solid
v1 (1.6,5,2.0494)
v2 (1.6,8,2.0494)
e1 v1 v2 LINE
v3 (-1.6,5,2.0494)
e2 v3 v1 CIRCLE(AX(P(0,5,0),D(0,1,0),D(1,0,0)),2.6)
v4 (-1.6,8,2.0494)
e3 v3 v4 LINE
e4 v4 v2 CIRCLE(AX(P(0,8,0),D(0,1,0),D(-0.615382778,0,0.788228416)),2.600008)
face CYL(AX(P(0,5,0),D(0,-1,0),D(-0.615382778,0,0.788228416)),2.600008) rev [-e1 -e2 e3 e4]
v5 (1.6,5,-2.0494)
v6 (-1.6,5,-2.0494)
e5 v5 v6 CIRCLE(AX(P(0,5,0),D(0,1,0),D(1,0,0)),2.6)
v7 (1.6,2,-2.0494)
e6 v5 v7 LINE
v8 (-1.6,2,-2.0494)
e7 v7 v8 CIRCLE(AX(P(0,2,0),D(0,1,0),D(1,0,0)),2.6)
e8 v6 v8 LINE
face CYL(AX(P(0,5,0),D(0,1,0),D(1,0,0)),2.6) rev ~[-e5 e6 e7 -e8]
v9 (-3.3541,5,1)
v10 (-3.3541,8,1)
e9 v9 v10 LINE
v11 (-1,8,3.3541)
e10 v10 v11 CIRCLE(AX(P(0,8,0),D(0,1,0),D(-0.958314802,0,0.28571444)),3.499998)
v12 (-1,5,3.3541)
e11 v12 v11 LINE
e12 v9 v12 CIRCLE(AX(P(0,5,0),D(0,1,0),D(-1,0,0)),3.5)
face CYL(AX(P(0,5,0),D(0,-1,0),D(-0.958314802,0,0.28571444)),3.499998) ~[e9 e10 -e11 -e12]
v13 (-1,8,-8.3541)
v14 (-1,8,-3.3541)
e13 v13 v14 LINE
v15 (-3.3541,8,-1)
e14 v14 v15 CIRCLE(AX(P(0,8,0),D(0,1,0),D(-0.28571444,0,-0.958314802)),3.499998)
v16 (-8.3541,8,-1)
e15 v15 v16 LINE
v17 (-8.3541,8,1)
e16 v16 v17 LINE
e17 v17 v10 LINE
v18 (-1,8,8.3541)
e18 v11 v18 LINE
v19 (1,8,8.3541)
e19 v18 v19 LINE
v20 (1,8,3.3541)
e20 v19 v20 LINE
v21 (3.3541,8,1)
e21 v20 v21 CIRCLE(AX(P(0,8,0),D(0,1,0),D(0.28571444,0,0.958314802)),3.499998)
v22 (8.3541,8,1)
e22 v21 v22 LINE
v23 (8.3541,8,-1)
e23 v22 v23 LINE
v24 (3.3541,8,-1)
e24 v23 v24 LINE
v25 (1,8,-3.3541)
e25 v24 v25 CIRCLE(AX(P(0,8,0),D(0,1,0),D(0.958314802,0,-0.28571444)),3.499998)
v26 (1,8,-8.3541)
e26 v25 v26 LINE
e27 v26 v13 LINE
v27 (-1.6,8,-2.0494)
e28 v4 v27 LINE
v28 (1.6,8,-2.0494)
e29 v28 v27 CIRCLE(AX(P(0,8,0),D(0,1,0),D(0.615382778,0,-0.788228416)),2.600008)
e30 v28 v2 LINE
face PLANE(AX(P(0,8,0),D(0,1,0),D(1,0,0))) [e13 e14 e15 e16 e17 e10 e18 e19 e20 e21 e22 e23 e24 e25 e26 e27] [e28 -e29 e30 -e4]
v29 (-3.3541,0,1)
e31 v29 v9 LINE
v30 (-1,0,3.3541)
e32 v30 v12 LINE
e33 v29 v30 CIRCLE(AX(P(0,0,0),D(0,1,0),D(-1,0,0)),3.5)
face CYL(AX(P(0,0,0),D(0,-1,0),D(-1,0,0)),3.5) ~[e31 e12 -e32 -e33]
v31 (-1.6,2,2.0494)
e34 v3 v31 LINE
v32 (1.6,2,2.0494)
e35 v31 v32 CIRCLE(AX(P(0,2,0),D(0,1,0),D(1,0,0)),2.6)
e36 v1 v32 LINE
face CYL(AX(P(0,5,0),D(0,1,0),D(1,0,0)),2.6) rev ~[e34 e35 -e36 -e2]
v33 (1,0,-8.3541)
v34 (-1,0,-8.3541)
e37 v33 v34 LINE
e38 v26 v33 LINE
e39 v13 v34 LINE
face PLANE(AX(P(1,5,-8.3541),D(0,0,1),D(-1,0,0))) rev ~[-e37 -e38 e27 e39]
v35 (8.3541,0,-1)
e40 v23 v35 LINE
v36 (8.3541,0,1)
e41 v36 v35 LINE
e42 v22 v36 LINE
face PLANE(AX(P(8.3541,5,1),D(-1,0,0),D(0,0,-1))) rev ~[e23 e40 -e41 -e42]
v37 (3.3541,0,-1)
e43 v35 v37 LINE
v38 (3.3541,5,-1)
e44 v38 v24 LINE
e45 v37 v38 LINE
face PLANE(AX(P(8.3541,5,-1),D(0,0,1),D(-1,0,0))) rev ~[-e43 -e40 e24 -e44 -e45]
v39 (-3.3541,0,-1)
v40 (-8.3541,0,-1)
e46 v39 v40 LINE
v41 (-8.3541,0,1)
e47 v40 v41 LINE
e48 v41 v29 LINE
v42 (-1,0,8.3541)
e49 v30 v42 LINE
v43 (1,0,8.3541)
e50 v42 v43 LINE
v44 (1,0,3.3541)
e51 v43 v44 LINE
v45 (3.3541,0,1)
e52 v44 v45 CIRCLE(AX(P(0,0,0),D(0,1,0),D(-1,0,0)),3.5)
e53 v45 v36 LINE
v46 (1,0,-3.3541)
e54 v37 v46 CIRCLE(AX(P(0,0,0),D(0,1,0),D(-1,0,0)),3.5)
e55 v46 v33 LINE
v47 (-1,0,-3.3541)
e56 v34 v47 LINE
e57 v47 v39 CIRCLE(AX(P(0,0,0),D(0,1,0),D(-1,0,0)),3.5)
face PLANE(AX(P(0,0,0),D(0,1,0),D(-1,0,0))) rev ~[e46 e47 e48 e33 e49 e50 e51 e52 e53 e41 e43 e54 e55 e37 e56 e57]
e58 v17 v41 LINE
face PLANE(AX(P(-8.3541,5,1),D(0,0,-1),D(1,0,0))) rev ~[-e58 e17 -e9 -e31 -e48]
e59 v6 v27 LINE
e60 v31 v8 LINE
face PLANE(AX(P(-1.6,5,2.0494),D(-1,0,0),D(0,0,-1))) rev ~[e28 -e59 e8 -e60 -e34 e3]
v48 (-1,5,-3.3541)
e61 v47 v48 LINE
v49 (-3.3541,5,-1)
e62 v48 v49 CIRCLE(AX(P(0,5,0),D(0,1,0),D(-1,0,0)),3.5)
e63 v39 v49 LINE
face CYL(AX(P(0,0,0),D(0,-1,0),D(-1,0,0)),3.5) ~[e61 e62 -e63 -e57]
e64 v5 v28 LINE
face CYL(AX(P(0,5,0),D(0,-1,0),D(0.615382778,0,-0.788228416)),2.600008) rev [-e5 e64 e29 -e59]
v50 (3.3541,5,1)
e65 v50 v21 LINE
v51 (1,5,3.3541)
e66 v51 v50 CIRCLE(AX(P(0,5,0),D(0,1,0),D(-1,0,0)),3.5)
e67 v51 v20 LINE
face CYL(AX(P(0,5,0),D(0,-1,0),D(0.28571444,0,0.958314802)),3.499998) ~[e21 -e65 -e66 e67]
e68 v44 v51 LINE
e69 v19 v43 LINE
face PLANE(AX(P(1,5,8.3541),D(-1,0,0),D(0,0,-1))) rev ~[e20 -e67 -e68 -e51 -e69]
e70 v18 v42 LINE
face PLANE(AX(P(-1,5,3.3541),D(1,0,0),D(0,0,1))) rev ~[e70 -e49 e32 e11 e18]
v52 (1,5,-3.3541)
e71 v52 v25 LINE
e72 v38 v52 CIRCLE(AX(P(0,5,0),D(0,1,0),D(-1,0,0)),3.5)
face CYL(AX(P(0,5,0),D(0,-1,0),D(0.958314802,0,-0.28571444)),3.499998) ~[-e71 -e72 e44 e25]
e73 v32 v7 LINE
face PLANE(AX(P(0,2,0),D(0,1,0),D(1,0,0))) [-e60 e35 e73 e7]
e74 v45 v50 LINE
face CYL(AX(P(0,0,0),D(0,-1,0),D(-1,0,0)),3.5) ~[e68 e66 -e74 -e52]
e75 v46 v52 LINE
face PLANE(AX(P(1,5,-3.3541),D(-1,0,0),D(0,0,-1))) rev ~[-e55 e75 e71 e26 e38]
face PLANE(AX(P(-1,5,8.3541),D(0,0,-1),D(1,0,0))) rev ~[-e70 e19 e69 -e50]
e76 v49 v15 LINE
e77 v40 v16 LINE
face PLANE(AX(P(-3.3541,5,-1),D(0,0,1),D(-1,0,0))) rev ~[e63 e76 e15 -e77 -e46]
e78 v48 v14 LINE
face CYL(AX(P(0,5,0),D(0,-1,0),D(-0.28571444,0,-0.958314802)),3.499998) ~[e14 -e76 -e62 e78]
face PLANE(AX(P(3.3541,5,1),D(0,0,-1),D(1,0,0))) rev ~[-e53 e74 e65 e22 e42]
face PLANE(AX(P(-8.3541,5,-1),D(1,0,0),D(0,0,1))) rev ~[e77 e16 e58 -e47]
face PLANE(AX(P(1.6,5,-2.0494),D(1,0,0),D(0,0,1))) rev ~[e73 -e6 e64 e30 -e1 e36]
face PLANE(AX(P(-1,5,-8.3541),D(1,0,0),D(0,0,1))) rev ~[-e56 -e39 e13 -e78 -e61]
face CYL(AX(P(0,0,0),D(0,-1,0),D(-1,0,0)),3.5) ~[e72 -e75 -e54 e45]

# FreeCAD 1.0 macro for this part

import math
import FreeCAD as App
import Part
import Sketcher

doc = App.newDocument("Part")
body = doc.addObject("PartDesign::Body", "Body")

# Sketch on XZ plane
sketch1 = body.newObject("Sketcher::SketchObject", "Sketch")
sketch1.AttachmentSupport = (doc.getObject("XZ_Plane"), [""])
sketch1.MapMode = "FlatFace"
sketch1.addGeometry([
    Part.ArcOfCircle(Part.Circle(App.Vector(0, 0, 0), App.Vector(0, 0, 1), 3.5), math.radians(-163), math.radians(-107)),  # 0
    Part.LineSegment(App.Vector(-3.4, -1, 0), App.Vector(-8.4, -1, 0)),  # 1
    Part.LineSegment(App.Vector(-8.4, -1, 0), App.Vector(-8.4, 1, 0)),  # 2
    Part.LineSegment(App.Vector(-8.4, 1, 0), App.Vector(-3.4, 1, 0)),  # 3
    Part.ArcOfCircle(Part.Circle(App.Vector(0, 0, 0), App.Vector(0, 0, 1), 3.5), math.radians(107), math.radians(163)),  # 4
    Part.LineSegment(App.Vector(-1, 3.4, 0), App.Vector(-1, 8.4, 0)),  # 5
    Part.LineSegment(App.Vector(-1, 8.4, 0), App.Vector(1, 8.4, 0)),  # 6
    Part.LineSegment(App.Vector(1, 8.4, 0), App.Vector(1, 3.4, 0)),  # 7
    Part.ArcOfCircle(Part.Circle(App.Vector(0, 0, 0), App.Vector(0, 0, 1), 3.5), math.radians(17), math.radians(73)),  # 8
    Part.LineSegment(App.Vector(3.4, 1, 0), App.Vector(8.4, 1, 0)),  # 9
    Part.LineSegment(App.Vector(8.4, 1, 0), App.Vector(8.4, -1, 0)),  # 10
    Part.LineSegment(App.Vector(8.4, -1, 0), App.Vector(3.4, -1, 0)),  # 11
    Part.ArcOfCircle(Part.Circle(App.Vector(0, 0, 0), App.Vector(0, 0, 1), 3.5), math.radians(-73), math.radians(-17)),  # 12
    Part.LineSegment(App.Vector(1, -3.4, 0), App.Vector(1, -8.4, 0)),  # 13
    Part.LineSegment(App.Vector(1, -8.4, 0), App.Vector(-1, -8.4, 0)),  # 14
    Part.LineSegment(App.Vector(-1, -8.4, 0), App.Vector(-1, -3.4, 0)),  # 15
], False)
sketch1.addConstraint([
    Sketcher.Constraint("Coincident", 0, 1, 1, 1),
    Sketcher.Constraint("Coincident", 1, 2, 2, 1),
    Sketcher.Constraint("Coincident", 2, 2, 3, 1),
    Sketcher.Constraint("Coincident", 3, 2, 4, 2),
    Sketcher.Constraint("Coincident", 4, 1, 5, 1),
    Sketcher.Constraint("Coincident", 5, 2, 6, 1),
    Sketcher.Constraint("Coincident", 6, 2, 7, 1),
    Sketcher.Constraint("Coincident", 7, 2, 8, 2),
    Sketcher.Constraint("Coincident", 8, 1, 9, 1),
    Sketcher.Constraint("Coincident", 9, 2, 10, 1),
    Sketcher.Constraint("Coincident", 10, 2, 11, 1),
    Sketcher.Constraint("Coincident", 11, 2, 12, 2),
    Sketcher.Constraint("Coincident", 12, 1, 13, 1),
    Sketcher.Constraint("Coincident", 13, 2, 14, 1),
    Sketcher.Constraint("Coincident", 14, 2, 15, 1),
    Sketcher.Constraint("Coincident", 15, 2, 0, 2),
    Sketcher.Constraint("Horizontal", 1),
    Sketcher.Constraint("Vertical", 2),
    Sketcher.Constraint("Horizontal", 3),
    Sketcher.Constraint("Vertical", 5),
    Sketcher.Constraint("Horizontal", 6),
    Sketcher.Constraint("Vertical", 7),
    Sketcher.Constraint("Horizontal", 9),
    Sketcher.Constraint("Vertical", 10),
    Sketcher.Constraint("Horizontal", 11),
    Sketcher.Constraint("Vertical", 13),
    Sketcher.Constraint("Horizontal", 14),
    Sketcher.Constraint("Vertical", 15),
    Sketcher.Constraint("Coincident", 0, 3, -1, 1),
    Sketcher.Constraint("Coincident", 4, 3, -1, 1),
    Sketcher.Constraint("Coincident", 8, 3, -1, 1),
    Sketcher.Constraint("Coincident", 12, 3, -1, 1),
    Sketcher.Constraint("Equal", 0, 4),
    Sketcher.Constraint("Equal", 4, 8),
    Sketcher.Constraint("Equal", 8, 12),
    Sketcher.Constraint("Symmetric", 1, 2, 9, 2, -1, 1),
    Sketcher.Constraint("Symmetric", 5, 2, 13, 2, -1, 1),
    Sketcher.Constraint("Horizontal", 4, 1, 7, 2),
    Sketcher.Constraint("Horizontal", 3, 2, 8, 1),
    Sketcher.Constraint("Horizontal", 1, 2, 10, 2),
    Sketcher.Constraint("Horizontal", 12, 1, 15, 2),
    Sketcher.Constraint("Equal", 14, 2),
    Sketcher.Constraint("Equal", 11, 5),
    Sketcher.Constraint("Radius", 0, 3.5),
    Sketcher.Constraint("DistanceX", 1, 2, 1, 1, 5.0),
    Sketcher.Constraint("DistanceX", 6, 1, 6, 2, 2.0),
])
pad1 = body.newObject("PartDesign::Pad", "Pad")
pad1.Profile = sketch1
pad1.Length = 5
pad1.Reversed = True

# Sketch on XZ plane
sketch2 = body.newObject("Sketcher::SketchObject", "Sketch001")
sketch2.AttachmentSupport = (doc.getObject("XZ_Plane"), [""])
sketch2.MapMode = "FlatFace"
sketch2.AttachmentOffset = App.Placement(App.Vector(0, 0, -5), App.Rotation())
sketch2.addGeometry([
    Part.LineSegment(App.Vector(1.6, 2, 0), App.Vector(1.6, -2, 0)),
    Part.ArcOfCircle(Part.Circle(App.Vector(0, 0, 0), App.Vector(0, 0, 1), 2.6), math.radians(-128), math.radians(-52)),
    Part.LineSegment(App.Vector(-1.6, -2, 0), App.Vector(-1.6, 2, 0)),
    Part.ArcOfCircle(Part.Circle(App.Vector(0, 0, 0), App.Vector(0, 0, 1), 2.6), math.radians(52), math.radians(128)),
], False)
sketch2.addConstraint([
    Sketcher.Constraint("Coincident", 0, 2, 1, 2),
    Sketcher.Constraint("Coincident", 1, 1, 2, 1),
    Sketcher.Constraint("Coincident", 2, 2, 3, 2),
    Sketcher.Constraint("Coincident", 3, 1, 0, 1),
    Sketcher.Constraint("Vertical", 0),
    Sketcher.Constraint("Vertical", 2),
    Sketcher.Constraint("Coincident", 1, 3, -1, 1),
    Sketcher.Constraint("Coincident", 3, 3, -1, 1),
    Sketcher.Constraint("Equal", 1, 3),
    Sketcher.Constraint("Horizontal", 0, 2, 1, 1),
    Sketcher.Constraint("Radius", 1, 2.6),
    Sketcher.Constraint("DistanceX", 1, 1, 0, 2, 3.2),
])
pocket1 = body.newObject("PartDesign::Pocket", "Pocket")
pocket1.Profile = sketch2
pocket1.Length = 3
pocket1.Reversed = True

# Sketch on XZ plane
sketch3 = body.newObject("Sketcher::SketchObject", "Sketch002")
sketch3.AttachmentSupport = (doc.getObject("XZ_Plane"), [""])
sketch3.MapMode = "FlatFace"
sketch3.AttachmentOffset = App.Placement(App.Vector(0, 0, -5), App.Rotation())
sketch3.addGeometry([
    Part.LineSegment(App.Vector(-1, -8.4, 0), App.Vector(-1, -3.4, 0)),  # 0
    Part.ArcOfCircle(Part.Circle(App.Vector(0, 0, 0), App.Vector(0, 0, 1), 3.5), math.radians(-163), math.radians(-107)),  # 1
    Part.LineSegment(App.Vector(-3.4, -1, 0), App.Vector(-8.4, -1, 0)),  # 2
    Part.LineSegment(App.Vector(-8.4, -1, 0), App.Vector(-8.4, 1, 0)),  # 3
    Part.LineSegment(App.Vector(-8.4, 1, 0), App.Vector(-3.4, 1, 0)),  # 4
    Part.ArcOfCircle(Part.Circle(App.Vector(0, 0, 0), App.Vector(0, 0, 1), 3.5), math.radians(107), math.radians(163)),  # 5
    Part.LineSegment(App.Vector(-1, 3.4, 0), App.Vector(-1, 8.4, 0)),  # 6
    Part.LineSegment(App.Vector(-1, 8.4, 0), App.Vector(1, 8.4, 0)),  # 7
    Part.LineSegment(App.Vector(1, 8.4, 0), App.Vector(1, 3.4, 0)),  # 8
    Part.ArcOfCircle(Part.Circle(App.Vector(0, 0, 0), App.Vector(0, 0, 1), 3.5), math.radians(17), math.radians(73)),  # 9
    Part.LineSegment(App.Vector(3.4, 1, 0), App.Vector(8.4, 1, 0)),  # 10
    Part.LineSegment(App.Vector(8.4, 1, 0), App.Vector(8.4, -1, 0)),  # 11
    Part.LineSegment(App.Vector(8.4, -1, 0), App.Vector(3.4, -1, 0)),  # 12
    Part.ArcOfCircle(Part.Circle(App.Vector(0, 0, 0), App.Vector(0, 0, 1), 3.5), math.radians(-73), math.radians(-17)),  # 13
    Part.LineSegment(App.Vector(1, -3.4, 0), App.Vector(1, -8.4, 0)),  # 14
    Part.LineSegment(App.Vector(1, -8.4, 0), App.Vector(-1, -8.4, 0)),  # 15
    Part.ArcOfCircle(Part.Circle(App.Vector(0, 0, 0), App.Vector(0, 0, 1), 2.6), math.radians(52), math.radians(128)),  # 16
    Part.LineSegment(App.Vector(-1.6, 2, 0), App.Vector(-1.6, -2, 0)),  # 17
    Part.ArcOfCircle(Part.Circle(App.Vector(0, 0, 0), App.Vector(0, 0, 1), 2.6), math.radians(-128), math.radians(-52)),  # 18
    Part.LineSegment(App.Vector(1.6, -2, 0), App.Vector(1.6, 2, 0)),  # 19
], False)
sketch3.addConstraint([
    Sketcher.Constraint("Coincident", 0, 2, 1, 2),
    Sketcher.Constraint("Coincident", 1, 1, 2, 1),
    Sketcher.Constraint("Coincident", 2, 2, 3, 1),
    Sketcher.Constraint("Coincident", 3, 2, 4, 1),
    Sketcher.Constraint("Coincident", 4, 2, 5, 2),
    Sketcher.Constraint("Coincident", 5, 1, 6, 1),
    Sketcher.Constraint("Coincident", 6, 2, 7, 1),
    Sketcher.Constraint("Coincident", 7, 2, 8, 1),
    Sketcher.Constraint("Coincident", 8, 2, 9, 2),
    Sketcher.Constraint("Coincident", 9, 1, 10, 1),
    Sketcher.Constraint("Coincident", 10, 2, 11, 1),
    Sketcher.Constraint("Coincident", 11, 2, 12, 1),
    Sketcher.Constraint("Coincident", 12, 2, 13, 2),
    Sketcher.Constraint("Coincident", 13, 1, 14, 1),
    Sketcher.Constraint("Coincident", 14, 2, 15, 1),
    Sketcher.Constraint("Coincident", 15, 2, 0, 1),
    Sketcher.Constraint("Coincident", 16, 2, 17, 1),
    Sketcher.Constraint("Coincident", 17, 2, 18, 1),
    Sketcher.Constraint("Coincident", 18, 2, 19, 1),
    Sketcher.Constraint("Coincident", 19, 2, 16, 1),
    Sketcher.Constraint("Vertical", 0),
    Sketcher.Constraint("Horizontal", 2),
    Sketcher.Constraint("Vertical", 3),
    Sketcher.Constraint("Horizontal", 4),
    Sketcher.Constraint("Vertical", 6),
    Sketcher.Constraint("Horizontal", 7),
    Sketcher.Constraint("Vertical", 8),
    Sketcher.Constraint("Horizontal", 10),
    Sketcher.Constraint("Vertical", 11),
    Sketcher.Constraint("Horizontal", 12),
    Sketcher.Constraint("Vertical", 14),
    Sketcher.Constraint("Horizontal", 15),
    Sketcher.Constraint("Vertical", 17),
    Sketcher.Constraint("Vertical", 19),
    Sketcher.Constraint("Coincident", 1, 3, -1, 1),
    Sketcher.Constraint("Coincident", 5, 3, -1, 1),
    Sketcher.Constraint("Coincident", 9, 3, -1, 1),
    Sketcher.Constraint("Coincident", 13, 3, -1, 1),
    Sketcher.Constraint("Coincident", 16, 3, -1, 1),
    Sketcher.Constraint("Coincident", 18, 3, -1, 1),
    Sketcher.Constraint("Equal", 1, 5),
    Sketcher.Constraint("Equal", 5, 9),
    Sketcher.Constraint("Equal", 9, 13),
    Sketcher.Constraint("Equal", 16, 18),
    Sketcher.Constraint("Symmetric", 2, 2, 10, 2, -1, 1),
    Sketcher.Constraint("Symmetric", 6, 2, 14, 2, -1, 1),
    Sketcher.Constraint("Horizontal", 5, 1, 8, 2),
    Sketcher.Constraint("Horizontal", 4, 2, 9, 1),
    Sketcher.Constraint("Horizontal", 2, 2, 11, 2),
    Sketcher.Constraint("Horizontal", 0, 2, 13, 1),
    Sketcher.Constraint("Horizontal", 17, 2, 18, 2),
    Sketcher.Constraint("Equal", 12, 0),
    Sketcher.Constraint("Equal", 15, 3),
    Sketcher.Constraint("Radius", 1, 3.5),
    Sketcher.Constraint("Radius", 16, 2.6),
    Sketcher.Constraint("DistanceX", 2, 2, 2, 1, 5.0),
    Sketcher.Constraint("DistanceX", 7, 1, 7, 2, 2.0),
    Sketcher.Constraint("DistanceX", 16, 2, -1, 1, 1.6),
])
pad2 = body.newObject("PartDesign::Pad", "Pad001")
pad2.Profile = sketch3
pad2.Length = 3
pad2.Reversed = True

doc.recompute()
